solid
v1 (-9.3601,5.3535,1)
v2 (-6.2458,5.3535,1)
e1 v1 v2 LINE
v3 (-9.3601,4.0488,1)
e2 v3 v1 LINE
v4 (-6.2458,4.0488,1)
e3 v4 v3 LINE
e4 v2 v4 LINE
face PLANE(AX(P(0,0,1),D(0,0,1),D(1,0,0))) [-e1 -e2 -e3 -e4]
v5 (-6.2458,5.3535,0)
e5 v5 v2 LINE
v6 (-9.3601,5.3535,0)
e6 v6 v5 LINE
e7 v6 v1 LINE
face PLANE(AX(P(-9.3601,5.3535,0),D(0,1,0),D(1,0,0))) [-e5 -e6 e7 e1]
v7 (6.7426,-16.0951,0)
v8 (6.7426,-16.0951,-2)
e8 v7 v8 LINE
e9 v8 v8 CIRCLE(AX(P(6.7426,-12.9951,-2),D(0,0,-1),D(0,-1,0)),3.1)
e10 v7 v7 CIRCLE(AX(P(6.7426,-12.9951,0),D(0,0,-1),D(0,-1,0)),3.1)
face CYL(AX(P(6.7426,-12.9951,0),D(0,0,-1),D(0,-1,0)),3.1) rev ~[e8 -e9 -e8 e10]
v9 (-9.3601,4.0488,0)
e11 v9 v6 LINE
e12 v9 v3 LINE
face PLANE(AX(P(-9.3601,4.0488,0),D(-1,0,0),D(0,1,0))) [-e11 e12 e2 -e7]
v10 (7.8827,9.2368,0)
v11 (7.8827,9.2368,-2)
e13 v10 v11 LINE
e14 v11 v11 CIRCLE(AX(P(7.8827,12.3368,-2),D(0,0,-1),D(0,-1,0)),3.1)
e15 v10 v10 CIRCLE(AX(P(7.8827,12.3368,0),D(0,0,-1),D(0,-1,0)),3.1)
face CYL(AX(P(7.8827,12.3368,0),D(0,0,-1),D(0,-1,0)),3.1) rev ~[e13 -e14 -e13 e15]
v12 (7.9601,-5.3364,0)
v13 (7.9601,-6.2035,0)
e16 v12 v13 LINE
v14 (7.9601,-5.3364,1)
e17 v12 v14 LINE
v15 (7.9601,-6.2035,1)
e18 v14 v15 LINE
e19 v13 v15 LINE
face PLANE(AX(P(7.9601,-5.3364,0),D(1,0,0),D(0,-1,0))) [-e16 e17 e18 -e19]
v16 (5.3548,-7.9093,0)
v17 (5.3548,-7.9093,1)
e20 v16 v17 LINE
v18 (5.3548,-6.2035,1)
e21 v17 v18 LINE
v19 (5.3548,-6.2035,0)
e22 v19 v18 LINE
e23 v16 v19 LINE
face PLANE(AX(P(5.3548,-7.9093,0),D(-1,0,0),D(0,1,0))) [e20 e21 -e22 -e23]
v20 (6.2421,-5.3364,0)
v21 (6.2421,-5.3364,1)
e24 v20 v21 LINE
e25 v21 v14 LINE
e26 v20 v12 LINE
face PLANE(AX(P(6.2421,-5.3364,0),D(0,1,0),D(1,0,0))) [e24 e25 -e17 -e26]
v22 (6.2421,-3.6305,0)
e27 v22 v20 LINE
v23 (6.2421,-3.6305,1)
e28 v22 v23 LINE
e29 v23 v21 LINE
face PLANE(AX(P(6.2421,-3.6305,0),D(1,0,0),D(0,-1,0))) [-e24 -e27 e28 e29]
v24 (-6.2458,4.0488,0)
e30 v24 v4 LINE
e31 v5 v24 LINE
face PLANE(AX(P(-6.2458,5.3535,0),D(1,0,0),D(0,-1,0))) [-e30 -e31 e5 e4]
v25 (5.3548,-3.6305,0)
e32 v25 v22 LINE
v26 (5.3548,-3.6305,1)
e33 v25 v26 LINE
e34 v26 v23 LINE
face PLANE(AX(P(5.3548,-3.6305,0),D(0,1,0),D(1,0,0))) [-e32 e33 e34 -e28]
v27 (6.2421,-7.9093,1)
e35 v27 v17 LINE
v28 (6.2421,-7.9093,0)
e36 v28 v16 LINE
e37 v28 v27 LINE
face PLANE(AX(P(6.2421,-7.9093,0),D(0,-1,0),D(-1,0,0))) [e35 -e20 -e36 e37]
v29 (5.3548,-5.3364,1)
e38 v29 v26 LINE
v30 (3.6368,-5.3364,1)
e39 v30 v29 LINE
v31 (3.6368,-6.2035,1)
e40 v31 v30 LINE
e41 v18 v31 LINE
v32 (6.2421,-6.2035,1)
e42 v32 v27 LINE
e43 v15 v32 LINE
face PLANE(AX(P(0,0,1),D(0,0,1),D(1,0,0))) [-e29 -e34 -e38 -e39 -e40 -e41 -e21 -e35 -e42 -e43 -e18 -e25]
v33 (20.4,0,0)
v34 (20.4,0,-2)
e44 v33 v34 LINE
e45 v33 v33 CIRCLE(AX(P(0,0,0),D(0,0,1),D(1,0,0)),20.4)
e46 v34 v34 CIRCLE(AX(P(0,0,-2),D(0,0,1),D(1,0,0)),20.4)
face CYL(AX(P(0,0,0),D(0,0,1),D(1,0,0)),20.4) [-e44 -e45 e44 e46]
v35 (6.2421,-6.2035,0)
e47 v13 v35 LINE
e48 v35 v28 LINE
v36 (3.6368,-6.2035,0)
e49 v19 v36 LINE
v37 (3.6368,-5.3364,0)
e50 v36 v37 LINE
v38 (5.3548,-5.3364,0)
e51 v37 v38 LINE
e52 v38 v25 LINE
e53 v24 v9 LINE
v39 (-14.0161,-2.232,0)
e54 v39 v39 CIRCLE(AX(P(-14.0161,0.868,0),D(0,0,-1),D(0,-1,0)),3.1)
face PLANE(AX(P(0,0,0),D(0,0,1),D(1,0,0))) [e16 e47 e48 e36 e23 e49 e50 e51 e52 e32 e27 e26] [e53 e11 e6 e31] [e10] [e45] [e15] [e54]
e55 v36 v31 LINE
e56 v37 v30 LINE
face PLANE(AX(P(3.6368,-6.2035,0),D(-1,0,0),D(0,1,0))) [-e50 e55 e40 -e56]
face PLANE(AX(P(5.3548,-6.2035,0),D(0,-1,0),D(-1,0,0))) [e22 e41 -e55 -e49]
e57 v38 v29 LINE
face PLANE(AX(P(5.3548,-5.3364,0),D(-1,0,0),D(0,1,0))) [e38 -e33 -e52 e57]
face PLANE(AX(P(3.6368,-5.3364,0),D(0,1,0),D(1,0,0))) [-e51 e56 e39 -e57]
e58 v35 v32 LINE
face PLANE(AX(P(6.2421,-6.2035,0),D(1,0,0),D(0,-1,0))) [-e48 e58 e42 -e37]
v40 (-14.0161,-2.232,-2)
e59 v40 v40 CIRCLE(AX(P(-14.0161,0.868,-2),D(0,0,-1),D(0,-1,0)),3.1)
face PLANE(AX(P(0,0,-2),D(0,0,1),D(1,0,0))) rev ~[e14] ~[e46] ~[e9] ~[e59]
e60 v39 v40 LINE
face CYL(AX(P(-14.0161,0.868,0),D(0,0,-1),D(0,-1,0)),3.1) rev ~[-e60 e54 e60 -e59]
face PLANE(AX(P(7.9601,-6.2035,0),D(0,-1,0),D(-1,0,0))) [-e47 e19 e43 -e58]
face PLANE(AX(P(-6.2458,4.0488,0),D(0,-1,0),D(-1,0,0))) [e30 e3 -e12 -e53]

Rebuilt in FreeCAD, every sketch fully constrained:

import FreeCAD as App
import Part
import Sketcher


def add_polygon(sketch, points):
    """Adds a closed chain of lines whose ends are joined by coincident constraints."""
    first, n = sketch.GeometryCount, len(points)
    for a, b in zip(points, points[1:] + points[:1]):
        sketch.addGeometry(Part.LineSegment(App.Vector(*a, 0), App.Vector(*b, 0)), False)
    for i in range(n):
        sketch.addConstraint(Sketcher.Constraint("Coincident", first + i, 2, first + (i + 1) % n, 1))

doc = App.newDocument("Part")
body = doc.addObject("PartDesign::Body", "Body")

# Sketch on XY plane
sketch1 = body.newObject("Sketcher::SketchObject", "Sketch")
sketch1.AttachmentSupport = (doc.getObject("XY_Plane"), [""])
sketch1.MapMode = "FlatFace"
sketch1.addGeometry(Part.Circle(App.Vector(0, 0, 0), App.Vector(0, 0, 1), 20), False)
sketch1.addConstraint(Sketcher.Constraint("Coincident", 0, 3, -1, 1))
sketch1.addConstraint(Sketcher.Constraint("Diameter", 0, 40.8))
pad1 = body.newObject("PartDesign::Pad", "Pad")
pad1.Profile = sketch1
pad1.Length = 2
pad1.Reversed = True

# Sketch on XY plane
sketch2 = body.newObject("Sketcher::SketchObject", "Sketch001")
sketch2.AttachmentSupport = (doc.getObject("XY_Plane"), [""])
sketch2.MapMode = "FlatFace"
sketch2.addGeometry(Part.Circle(App.Vector(6.7, -13, 0), App.Vector(0, 0, 1), 3.1), False)
sketch2.addGeometry(Part.Circle(App.Vector(-14, 0.9, 0), App.Vector(0, 0, 1), 3.1), False)
sketch2.addGeometry(Part.Circle(App.Vector(7.9, 12.3, 0), App.Vector(0, 0, 1), 3.1), False)
sketch2.addConstraint(Sketcher.Constraint("Equal", 0, 1))
sketch2.addConstraint(Sketcher.Constraint("Equal", 1, 2))
sketch2.addConstraint(Sketcher.Constraint("Diameter", 0, 6.2))
sketch2.addConstraint(Sketcher.Constraint("DistanceX", 0, 3, 2, 3, 1.14))
sketch2.addConstraint(Sketcher.Constraint("DistanceY", 0, 3, -1, 1, 12.995))
sketch2.addConstraint(Sketcher.Constraint("DistanceX", 1, 3, -1, 1, 14.016))
sketch2.addConstraint(Sketcher.Constraint("DistanceY", -1, 1, 1, 3, 0.868))
sketch2.addConstraint(Sketcher.Constraint("DistanceY", 0, 3, 2, 3, 25.332))
sketch2.addConstraint(Sketcher.Constraint("DistanceX", -1, 1, 0, 3, 6.7426))
doc.recompute()
hole = body.newObject("PartDesign::Hole", "Hole")
hole.Profile = sketch2
hole.ThreadType = "None"
hole.Diameter = 6.2
hole.DepthType = "ThroughAll"

# Sketch on XY plane
sketch3 = body.newObject("Sketcher::SketchObject", "Sketch002")
sketch3.AttachmentSupport = (doc.getObject("XY_Plane"), [""])
sketch3.MapMode = "FlatFace"
add_polygon(sketch3, [(6.2, -6.2), (8, -6.2), (8, -5.3), (6.2, -5.3), (6.2, -3.6), (5.4, -3.6), (5.4, -5.3), (3.6, -5.3), (3.6, -6.2), (5.4, -6.2), (5.4, -7.9), (6.2, -7.9)])  # lines 0-11
add_polygon(sketch3, [(-9.4, 4), (-6.2, 4), (-6.2, 5.4), (-9.4, 5.4)])  # lines 12-15
sketch3.addConstraint(Sketcher.Constraint("Horizontal", 0))
sketch3.addConstraint(Sketcher.Constraint("Vertical", 1))
sketch3.addConstraint(Sketcher.Constraint("Horizontal", 2))
sketch3.addConstraint(Sketcher.Constraint("Vertical", 3))
sketch3.addConstraint(Sketcher.Constraint("Horizontal", 4))
sketch3.addConstraint(Sketcher.Constraint("Vertical", 5))
sketch3.addConstraint(Sketcher.Constraint("Horizontal", 6))
sketch3.addConstraint(Sketcher.Constraint("Vertical", 7))
sketch3.addConstraint(Sketcher.Constraint("Horizontal", 8))
sketch3.addConstraint(Sketcher.Constraint("Vertical", 9))
sketch3.addConstraint(Sketcher.Constraint("Horizontal", 10))
sketch3.addConstraint(Sketcher.Constraint("Vertical", 11))
sketch3.addConstraint(Sketcher.Constraint("Horizontal", 12))
sketch3.addConstraint(Sketcher.Constraint("Vertical", 13))
sketch3.addConstraint(Sketcher.Constraint("Horizontal", 14))
sketch3.addConstraint(Sketcher.Constraint("Vertical", 15))
sketch3.addConstraint(Sketcher.Constraint("Horizontal", 2, 2, 5, 2))
sketch3.addConstraint(Sketcher.Constraint("Horizontal", 0, 2, 7, 2))
sketch3.addConstraint(Sketcher.Constraint("Vertical", 5, 2, 8, 2))
sketch3.addConstraint(Sketcher.Constraint("Vertical", 3, 2, 10, 2))
sketch3.addConstraint(Sketcher.Constraint("Equal", 2, 6))
sketch3.addConstraint(Sketcher.Constraint("Equal", 5, 9))
sketch3.addConstraint(Sketcher.Constraint("DistanceX", 0, 1, 0, 2, 1.718))
sketch3.addConstraint(Sketcher.Constraint("DistanceY", 1, 1, 1, 2, 0.867))
sketch3.addConstraint(Sketcher.Constraint("DistanceY", 3, 1, 3, 2, 1.706))
sketch3.addConstraint(Sketcher.Constraint("DistanceX", -1, 1, 0, 2, 7.96))
sketch3.addConstraint(Sketcher.Constraint("DistanceX", 14, 2, -1, 1, 9.36))
sketch3.addConstraint(Sketcher.Constraint("DistanceY", 6, 2, 13, 2, 10.69))
sketch3.addConstraint(Sketcher.Constraint("DistanceX", 4, 2, 4, 1, 0.8873))
sketch3.addConstraint(Sketcher.Constraint("DistanceX", 12, 1, 12, 2, 3.1143))
sketch3.addConstraint(Sketcher.Constraint("DistanceY", 13, 1, 13, 2, 1.3047))
sketch3.addConstraint(Sketcher.Constraint("DistanceY", 0, 2, -1, 1, 6.2035))
pad2 = body.newObject("PartDesign::Pad", "Pad001")
pad2.Profile = sketch3
pad2.Length = 1

doc.recompute()
